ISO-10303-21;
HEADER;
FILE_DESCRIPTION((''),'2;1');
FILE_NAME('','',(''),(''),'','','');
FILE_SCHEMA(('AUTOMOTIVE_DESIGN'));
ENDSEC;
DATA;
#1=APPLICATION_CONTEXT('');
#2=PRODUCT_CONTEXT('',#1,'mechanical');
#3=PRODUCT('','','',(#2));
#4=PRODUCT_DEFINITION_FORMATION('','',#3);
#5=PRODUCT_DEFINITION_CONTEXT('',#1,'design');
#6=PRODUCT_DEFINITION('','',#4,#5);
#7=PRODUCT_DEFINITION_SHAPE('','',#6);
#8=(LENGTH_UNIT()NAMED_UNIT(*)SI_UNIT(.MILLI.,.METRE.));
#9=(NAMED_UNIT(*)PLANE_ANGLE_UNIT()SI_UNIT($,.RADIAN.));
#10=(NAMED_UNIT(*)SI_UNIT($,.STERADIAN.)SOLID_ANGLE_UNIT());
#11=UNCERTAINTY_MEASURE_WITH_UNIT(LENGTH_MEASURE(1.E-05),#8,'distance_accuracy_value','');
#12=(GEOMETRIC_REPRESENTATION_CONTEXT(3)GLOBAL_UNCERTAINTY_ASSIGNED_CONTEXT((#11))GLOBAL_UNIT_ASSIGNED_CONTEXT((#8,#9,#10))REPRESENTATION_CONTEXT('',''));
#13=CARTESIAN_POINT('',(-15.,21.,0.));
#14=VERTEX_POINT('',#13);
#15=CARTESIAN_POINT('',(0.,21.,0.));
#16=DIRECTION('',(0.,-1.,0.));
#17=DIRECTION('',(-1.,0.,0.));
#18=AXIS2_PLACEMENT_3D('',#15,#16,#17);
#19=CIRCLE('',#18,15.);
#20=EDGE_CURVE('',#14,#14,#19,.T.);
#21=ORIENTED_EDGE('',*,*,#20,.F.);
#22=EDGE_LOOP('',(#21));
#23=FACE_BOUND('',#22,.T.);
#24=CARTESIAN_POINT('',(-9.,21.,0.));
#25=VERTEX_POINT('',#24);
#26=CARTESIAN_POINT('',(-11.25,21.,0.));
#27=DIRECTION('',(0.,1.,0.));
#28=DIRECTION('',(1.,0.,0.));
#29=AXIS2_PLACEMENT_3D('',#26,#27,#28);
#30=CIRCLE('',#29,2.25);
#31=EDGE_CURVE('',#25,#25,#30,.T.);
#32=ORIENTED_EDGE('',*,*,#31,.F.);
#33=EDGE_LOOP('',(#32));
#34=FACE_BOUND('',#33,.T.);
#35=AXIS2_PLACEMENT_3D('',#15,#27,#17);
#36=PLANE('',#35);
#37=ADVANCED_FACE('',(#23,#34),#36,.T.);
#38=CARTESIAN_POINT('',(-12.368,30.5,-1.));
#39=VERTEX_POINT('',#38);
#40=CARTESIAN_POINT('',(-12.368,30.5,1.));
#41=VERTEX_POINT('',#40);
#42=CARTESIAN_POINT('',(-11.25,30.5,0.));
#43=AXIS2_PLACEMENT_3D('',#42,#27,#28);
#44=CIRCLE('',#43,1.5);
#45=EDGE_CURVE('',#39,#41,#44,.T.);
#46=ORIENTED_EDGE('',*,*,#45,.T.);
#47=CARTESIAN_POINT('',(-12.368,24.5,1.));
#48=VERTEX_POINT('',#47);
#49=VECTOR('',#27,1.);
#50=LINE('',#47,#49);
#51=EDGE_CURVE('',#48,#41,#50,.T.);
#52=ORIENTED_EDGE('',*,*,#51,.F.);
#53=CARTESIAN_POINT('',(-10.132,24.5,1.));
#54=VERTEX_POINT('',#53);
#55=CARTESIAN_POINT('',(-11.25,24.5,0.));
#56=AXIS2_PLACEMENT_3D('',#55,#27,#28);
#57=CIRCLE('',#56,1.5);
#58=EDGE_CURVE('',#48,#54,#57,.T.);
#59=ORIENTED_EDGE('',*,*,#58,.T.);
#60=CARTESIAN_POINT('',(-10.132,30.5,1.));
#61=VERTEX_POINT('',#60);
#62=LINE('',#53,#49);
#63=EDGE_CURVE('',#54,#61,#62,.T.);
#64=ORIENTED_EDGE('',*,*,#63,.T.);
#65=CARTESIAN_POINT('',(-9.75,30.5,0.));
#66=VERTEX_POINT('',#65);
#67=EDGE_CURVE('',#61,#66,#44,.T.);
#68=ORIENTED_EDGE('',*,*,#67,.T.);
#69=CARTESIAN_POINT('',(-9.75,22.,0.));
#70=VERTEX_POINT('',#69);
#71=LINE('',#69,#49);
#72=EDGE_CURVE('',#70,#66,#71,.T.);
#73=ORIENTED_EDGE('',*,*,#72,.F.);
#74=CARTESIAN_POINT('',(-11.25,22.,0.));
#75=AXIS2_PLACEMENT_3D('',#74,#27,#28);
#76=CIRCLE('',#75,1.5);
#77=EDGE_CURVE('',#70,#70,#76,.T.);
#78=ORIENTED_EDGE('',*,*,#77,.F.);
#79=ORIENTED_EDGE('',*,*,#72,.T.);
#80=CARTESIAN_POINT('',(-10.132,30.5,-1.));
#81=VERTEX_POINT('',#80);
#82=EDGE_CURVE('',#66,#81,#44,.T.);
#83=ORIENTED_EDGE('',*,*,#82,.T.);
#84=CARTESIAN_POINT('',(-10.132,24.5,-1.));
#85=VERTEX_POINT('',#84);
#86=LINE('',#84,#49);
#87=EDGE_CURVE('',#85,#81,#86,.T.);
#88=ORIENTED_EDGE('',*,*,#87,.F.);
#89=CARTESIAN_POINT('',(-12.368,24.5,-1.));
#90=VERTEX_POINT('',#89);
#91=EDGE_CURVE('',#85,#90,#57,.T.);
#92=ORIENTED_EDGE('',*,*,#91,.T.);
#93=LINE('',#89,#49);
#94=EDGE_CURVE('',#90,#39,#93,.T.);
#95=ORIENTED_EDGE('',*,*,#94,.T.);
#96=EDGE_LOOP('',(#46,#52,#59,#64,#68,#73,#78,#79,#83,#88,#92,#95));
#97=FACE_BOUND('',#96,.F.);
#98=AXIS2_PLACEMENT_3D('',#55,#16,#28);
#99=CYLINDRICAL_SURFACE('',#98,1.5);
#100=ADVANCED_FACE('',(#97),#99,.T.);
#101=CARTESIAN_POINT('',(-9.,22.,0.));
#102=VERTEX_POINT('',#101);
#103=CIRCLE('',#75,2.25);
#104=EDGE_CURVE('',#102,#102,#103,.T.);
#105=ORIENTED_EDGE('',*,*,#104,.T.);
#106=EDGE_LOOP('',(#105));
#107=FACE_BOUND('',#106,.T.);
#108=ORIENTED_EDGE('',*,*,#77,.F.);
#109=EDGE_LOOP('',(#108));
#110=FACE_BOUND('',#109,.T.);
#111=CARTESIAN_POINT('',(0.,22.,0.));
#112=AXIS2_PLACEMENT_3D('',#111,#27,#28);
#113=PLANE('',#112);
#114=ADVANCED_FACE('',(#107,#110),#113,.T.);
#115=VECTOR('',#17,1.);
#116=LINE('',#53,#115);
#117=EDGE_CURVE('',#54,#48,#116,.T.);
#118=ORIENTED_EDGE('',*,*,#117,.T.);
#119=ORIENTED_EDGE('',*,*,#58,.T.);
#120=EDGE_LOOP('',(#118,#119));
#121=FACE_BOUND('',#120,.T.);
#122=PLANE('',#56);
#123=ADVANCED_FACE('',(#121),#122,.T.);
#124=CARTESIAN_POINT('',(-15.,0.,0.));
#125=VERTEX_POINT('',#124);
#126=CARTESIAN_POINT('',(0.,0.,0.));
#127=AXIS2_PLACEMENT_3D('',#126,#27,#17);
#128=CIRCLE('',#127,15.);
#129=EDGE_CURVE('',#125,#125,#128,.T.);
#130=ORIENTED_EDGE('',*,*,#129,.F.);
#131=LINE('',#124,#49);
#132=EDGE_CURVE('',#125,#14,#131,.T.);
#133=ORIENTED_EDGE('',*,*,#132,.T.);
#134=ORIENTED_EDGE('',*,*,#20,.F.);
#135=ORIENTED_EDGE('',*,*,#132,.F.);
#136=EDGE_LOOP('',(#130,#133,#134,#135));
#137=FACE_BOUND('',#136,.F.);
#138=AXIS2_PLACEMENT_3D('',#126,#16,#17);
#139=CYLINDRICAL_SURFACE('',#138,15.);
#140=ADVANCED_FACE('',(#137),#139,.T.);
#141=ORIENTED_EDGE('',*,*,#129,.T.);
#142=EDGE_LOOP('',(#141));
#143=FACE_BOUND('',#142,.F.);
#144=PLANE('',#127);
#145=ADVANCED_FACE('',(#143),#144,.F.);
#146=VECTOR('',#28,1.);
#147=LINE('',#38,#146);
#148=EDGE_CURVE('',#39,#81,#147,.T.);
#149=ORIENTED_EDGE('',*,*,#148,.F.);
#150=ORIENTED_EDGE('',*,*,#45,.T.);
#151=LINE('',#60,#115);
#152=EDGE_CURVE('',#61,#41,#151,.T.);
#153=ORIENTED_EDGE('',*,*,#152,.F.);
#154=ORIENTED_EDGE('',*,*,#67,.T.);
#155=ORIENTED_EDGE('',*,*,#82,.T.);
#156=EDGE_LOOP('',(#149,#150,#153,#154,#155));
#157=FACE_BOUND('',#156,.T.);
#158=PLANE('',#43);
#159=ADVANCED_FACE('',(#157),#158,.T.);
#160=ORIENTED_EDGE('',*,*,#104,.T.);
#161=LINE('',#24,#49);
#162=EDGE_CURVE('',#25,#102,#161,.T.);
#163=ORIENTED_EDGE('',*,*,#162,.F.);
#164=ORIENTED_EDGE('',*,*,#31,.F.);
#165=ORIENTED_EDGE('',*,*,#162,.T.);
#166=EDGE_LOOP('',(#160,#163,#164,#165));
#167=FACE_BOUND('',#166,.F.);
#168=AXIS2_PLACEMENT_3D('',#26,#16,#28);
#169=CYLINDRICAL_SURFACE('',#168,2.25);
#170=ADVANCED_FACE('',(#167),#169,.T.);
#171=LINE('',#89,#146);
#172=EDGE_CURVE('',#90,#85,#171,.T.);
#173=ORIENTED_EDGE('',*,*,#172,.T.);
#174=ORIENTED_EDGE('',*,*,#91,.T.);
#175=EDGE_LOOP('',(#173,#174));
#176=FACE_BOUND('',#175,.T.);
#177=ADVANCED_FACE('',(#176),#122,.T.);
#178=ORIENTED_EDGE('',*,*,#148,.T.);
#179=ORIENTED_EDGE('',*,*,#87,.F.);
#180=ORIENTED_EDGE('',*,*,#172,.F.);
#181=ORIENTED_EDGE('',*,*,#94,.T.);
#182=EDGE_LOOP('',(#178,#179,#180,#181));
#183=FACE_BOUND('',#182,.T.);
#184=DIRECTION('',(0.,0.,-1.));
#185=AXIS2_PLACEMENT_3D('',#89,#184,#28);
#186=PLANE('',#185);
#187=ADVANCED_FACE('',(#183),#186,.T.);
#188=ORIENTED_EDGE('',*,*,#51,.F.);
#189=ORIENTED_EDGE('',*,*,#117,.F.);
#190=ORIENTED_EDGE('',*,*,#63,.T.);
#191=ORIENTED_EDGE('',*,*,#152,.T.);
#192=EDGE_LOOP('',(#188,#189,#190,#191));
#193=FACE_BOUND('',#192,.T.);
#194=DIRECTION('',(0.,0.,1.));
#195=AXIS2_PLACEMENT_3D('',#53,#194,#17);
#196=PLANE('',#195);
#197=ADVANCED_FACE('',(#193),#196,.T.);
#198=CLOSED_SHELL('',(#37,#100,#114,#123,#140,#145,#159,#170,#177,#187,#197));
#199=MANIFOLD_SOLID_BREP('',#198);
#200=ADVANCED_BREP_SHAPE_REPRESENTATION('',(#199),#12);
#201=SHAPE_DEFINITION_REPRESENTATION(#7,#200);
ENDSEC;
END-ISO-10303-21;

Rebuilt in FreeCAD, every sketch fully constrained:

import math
import FreeCAD as App
import Part
import Sketcher
from FreeCAD import Vector

doc = App.newDocument("Part")
body = doc.addObject("PartDesign::Body", "Body")

sketch1 = doc.addObject("Sketcher::SketchObject", "Sketch")
body.addObject(sketch1)
sketch1.AttachmentSupport = (doc.XZ_Plane, [""])
sketch1.MapMode = "FlatFace"
sketch1.addGeometry(Part.Circle(Vector(0, 0, 0), Vector(0, 0, 1), 15), False)
sketch1.addConstraint([
    Sketcher.Constraint("Coincident", 0, 3, -1, 1),
    Sketcher.Constraint("Diameter", 0, 30.0),
])
pad1 = doc.addObject("PartDesign::Pad", "Pad")
body.addObject(pad1)
pad1.Profile = sketch1
pad1.Length = 21
pad1.Reversed = True

sketch2 = doc.addObject("Sketcher::SketchObject", "Sketch001")
body.addObject(sketch2)
sketch2.AttachmentSupport = (doc.XZ_Plane, [""])
sketch2.MapMode = "FlatFace"
sketch2.AttachmentOffset = App.Placement(Vector(0, 0, -21), App.Rotation())
sketch2.addGeometry(Part.Circle(Vector(-11.2, 0, 0), Vector(0, 0, 1), 2.2), False)
sketch2.addConstraint([
    Sketcher.Constraint("PointOnObject", 0, 3, -1),
    Sketcher.Constraint("Diameter", 0, 4.5),
    Sketcher.Constraint("DistanceX", 0, 3, -1, 1, 11.25),
])
pad2 = doc.addObject("PartDesign::Pad", "Pad001")
body.addObject(pad2)
pad2.Profile = sketch2
pad2.Length = 1
pad2.Reversed = True

sketch3 = doc.addObject("Sketcher::SketchObject", "Sketch002")
body.addObject(sketch3)
sketch3.AttachmentSupport = (doc.XZ_Plane, [""])
sketch3.MapMode = "FlatFace"
sketch3.AttachmentOffset = App.Placement(Vector(0, 0, -22), App.Rotation())
sketch3.addGeometry(Part.Circle(Vector(-11.2, 0, 0), Vector(0, 0, 1), 1.5), False)
sketch3.addConstraint([
    Sketcher.Constraint("PointOnObject", 0, 3, -1),
    Sketcher.Constraint("Diameter", 0, 3.0),
    Sketcher.Constraint("DistanceX", 0, 3, -1, 1, 11.25),
])
pad3 = doc.addObject("PartDesign::Pad", "Pad002")
body.addObject(pad3)
pad3.Profile = sketch3
pad3.Length = 2.5
pad3.Reversed = True

sketch4 = doc.addObject("Sketcher::SketchObject", "Sketch003")
body.addObject(sketch4)
sketch4.AttachmentSupport = (doc.XZ_Plane, [""])
sketch4.MapMode = "FlatFace"
sketch4.AttachmentOffset = App.Placement(Vector(0, 0, -24.5), App.Rotation())
sketch4.addGeometry([
    Part.LineSegment(Vector(-12.4, 1, 0), Vector(-10.1, 1, 0)),
    Part.ArcOfCircle(Part.Circle(Vector(-11.2, 0, 0), Vector(0, 0, 1), 1.5), math.radians(-42), math.radians(42)),
    Part.LineSegment(Vector(-10.1, -1, 0), Vector(-12.4, -1, 0)),
    Part.ArcOfCircle(Part.Circle(Vector(-11.2, 0, 0), Vector(0, 0, 1), 1.5), math.radians(138), math.radians(222)),
], False)
sketch4.addConstraint([
    Sketcher.Constraint("Coincident", 0, 2, 1, 2),
    Sketcher.Constraint("Coincident", 1, 1, 2, 1),
    Sketcher.Constraint("Coincident", 2, 2, 3, 2),
    Sketcher.Constraint("Coincident", 3, 1, 0, 1),
    Sketcher.Constraint("Horizontal", 0),
    Sketcher.Constraint("Horizontal", 2),
    Sketcher.Constraint("Coincident", 3, 3, 1, 3),
    Sketcher.Constraint("Equal", 1, 3),
    Sketcher.Constraint("Symmetric", 0, 2, 1, 1, -1),
    Sketcher.Constraint("Radius", 1, 1.5),
    Sketcher.Constraint("DistanceY", -1, 1, 0, 2, 1.0),
    Sketcher.Constraint("DistanceX", 1, 3, -1, 1, 11.25),
])
pad4 = doc.addObject("PartDesign::Pad", "Pad003")
body.addObject(pad4)
pad4.Profile = sketch4
pad4.Length = 6
pad4.Reversed = True

doc.recompute()
